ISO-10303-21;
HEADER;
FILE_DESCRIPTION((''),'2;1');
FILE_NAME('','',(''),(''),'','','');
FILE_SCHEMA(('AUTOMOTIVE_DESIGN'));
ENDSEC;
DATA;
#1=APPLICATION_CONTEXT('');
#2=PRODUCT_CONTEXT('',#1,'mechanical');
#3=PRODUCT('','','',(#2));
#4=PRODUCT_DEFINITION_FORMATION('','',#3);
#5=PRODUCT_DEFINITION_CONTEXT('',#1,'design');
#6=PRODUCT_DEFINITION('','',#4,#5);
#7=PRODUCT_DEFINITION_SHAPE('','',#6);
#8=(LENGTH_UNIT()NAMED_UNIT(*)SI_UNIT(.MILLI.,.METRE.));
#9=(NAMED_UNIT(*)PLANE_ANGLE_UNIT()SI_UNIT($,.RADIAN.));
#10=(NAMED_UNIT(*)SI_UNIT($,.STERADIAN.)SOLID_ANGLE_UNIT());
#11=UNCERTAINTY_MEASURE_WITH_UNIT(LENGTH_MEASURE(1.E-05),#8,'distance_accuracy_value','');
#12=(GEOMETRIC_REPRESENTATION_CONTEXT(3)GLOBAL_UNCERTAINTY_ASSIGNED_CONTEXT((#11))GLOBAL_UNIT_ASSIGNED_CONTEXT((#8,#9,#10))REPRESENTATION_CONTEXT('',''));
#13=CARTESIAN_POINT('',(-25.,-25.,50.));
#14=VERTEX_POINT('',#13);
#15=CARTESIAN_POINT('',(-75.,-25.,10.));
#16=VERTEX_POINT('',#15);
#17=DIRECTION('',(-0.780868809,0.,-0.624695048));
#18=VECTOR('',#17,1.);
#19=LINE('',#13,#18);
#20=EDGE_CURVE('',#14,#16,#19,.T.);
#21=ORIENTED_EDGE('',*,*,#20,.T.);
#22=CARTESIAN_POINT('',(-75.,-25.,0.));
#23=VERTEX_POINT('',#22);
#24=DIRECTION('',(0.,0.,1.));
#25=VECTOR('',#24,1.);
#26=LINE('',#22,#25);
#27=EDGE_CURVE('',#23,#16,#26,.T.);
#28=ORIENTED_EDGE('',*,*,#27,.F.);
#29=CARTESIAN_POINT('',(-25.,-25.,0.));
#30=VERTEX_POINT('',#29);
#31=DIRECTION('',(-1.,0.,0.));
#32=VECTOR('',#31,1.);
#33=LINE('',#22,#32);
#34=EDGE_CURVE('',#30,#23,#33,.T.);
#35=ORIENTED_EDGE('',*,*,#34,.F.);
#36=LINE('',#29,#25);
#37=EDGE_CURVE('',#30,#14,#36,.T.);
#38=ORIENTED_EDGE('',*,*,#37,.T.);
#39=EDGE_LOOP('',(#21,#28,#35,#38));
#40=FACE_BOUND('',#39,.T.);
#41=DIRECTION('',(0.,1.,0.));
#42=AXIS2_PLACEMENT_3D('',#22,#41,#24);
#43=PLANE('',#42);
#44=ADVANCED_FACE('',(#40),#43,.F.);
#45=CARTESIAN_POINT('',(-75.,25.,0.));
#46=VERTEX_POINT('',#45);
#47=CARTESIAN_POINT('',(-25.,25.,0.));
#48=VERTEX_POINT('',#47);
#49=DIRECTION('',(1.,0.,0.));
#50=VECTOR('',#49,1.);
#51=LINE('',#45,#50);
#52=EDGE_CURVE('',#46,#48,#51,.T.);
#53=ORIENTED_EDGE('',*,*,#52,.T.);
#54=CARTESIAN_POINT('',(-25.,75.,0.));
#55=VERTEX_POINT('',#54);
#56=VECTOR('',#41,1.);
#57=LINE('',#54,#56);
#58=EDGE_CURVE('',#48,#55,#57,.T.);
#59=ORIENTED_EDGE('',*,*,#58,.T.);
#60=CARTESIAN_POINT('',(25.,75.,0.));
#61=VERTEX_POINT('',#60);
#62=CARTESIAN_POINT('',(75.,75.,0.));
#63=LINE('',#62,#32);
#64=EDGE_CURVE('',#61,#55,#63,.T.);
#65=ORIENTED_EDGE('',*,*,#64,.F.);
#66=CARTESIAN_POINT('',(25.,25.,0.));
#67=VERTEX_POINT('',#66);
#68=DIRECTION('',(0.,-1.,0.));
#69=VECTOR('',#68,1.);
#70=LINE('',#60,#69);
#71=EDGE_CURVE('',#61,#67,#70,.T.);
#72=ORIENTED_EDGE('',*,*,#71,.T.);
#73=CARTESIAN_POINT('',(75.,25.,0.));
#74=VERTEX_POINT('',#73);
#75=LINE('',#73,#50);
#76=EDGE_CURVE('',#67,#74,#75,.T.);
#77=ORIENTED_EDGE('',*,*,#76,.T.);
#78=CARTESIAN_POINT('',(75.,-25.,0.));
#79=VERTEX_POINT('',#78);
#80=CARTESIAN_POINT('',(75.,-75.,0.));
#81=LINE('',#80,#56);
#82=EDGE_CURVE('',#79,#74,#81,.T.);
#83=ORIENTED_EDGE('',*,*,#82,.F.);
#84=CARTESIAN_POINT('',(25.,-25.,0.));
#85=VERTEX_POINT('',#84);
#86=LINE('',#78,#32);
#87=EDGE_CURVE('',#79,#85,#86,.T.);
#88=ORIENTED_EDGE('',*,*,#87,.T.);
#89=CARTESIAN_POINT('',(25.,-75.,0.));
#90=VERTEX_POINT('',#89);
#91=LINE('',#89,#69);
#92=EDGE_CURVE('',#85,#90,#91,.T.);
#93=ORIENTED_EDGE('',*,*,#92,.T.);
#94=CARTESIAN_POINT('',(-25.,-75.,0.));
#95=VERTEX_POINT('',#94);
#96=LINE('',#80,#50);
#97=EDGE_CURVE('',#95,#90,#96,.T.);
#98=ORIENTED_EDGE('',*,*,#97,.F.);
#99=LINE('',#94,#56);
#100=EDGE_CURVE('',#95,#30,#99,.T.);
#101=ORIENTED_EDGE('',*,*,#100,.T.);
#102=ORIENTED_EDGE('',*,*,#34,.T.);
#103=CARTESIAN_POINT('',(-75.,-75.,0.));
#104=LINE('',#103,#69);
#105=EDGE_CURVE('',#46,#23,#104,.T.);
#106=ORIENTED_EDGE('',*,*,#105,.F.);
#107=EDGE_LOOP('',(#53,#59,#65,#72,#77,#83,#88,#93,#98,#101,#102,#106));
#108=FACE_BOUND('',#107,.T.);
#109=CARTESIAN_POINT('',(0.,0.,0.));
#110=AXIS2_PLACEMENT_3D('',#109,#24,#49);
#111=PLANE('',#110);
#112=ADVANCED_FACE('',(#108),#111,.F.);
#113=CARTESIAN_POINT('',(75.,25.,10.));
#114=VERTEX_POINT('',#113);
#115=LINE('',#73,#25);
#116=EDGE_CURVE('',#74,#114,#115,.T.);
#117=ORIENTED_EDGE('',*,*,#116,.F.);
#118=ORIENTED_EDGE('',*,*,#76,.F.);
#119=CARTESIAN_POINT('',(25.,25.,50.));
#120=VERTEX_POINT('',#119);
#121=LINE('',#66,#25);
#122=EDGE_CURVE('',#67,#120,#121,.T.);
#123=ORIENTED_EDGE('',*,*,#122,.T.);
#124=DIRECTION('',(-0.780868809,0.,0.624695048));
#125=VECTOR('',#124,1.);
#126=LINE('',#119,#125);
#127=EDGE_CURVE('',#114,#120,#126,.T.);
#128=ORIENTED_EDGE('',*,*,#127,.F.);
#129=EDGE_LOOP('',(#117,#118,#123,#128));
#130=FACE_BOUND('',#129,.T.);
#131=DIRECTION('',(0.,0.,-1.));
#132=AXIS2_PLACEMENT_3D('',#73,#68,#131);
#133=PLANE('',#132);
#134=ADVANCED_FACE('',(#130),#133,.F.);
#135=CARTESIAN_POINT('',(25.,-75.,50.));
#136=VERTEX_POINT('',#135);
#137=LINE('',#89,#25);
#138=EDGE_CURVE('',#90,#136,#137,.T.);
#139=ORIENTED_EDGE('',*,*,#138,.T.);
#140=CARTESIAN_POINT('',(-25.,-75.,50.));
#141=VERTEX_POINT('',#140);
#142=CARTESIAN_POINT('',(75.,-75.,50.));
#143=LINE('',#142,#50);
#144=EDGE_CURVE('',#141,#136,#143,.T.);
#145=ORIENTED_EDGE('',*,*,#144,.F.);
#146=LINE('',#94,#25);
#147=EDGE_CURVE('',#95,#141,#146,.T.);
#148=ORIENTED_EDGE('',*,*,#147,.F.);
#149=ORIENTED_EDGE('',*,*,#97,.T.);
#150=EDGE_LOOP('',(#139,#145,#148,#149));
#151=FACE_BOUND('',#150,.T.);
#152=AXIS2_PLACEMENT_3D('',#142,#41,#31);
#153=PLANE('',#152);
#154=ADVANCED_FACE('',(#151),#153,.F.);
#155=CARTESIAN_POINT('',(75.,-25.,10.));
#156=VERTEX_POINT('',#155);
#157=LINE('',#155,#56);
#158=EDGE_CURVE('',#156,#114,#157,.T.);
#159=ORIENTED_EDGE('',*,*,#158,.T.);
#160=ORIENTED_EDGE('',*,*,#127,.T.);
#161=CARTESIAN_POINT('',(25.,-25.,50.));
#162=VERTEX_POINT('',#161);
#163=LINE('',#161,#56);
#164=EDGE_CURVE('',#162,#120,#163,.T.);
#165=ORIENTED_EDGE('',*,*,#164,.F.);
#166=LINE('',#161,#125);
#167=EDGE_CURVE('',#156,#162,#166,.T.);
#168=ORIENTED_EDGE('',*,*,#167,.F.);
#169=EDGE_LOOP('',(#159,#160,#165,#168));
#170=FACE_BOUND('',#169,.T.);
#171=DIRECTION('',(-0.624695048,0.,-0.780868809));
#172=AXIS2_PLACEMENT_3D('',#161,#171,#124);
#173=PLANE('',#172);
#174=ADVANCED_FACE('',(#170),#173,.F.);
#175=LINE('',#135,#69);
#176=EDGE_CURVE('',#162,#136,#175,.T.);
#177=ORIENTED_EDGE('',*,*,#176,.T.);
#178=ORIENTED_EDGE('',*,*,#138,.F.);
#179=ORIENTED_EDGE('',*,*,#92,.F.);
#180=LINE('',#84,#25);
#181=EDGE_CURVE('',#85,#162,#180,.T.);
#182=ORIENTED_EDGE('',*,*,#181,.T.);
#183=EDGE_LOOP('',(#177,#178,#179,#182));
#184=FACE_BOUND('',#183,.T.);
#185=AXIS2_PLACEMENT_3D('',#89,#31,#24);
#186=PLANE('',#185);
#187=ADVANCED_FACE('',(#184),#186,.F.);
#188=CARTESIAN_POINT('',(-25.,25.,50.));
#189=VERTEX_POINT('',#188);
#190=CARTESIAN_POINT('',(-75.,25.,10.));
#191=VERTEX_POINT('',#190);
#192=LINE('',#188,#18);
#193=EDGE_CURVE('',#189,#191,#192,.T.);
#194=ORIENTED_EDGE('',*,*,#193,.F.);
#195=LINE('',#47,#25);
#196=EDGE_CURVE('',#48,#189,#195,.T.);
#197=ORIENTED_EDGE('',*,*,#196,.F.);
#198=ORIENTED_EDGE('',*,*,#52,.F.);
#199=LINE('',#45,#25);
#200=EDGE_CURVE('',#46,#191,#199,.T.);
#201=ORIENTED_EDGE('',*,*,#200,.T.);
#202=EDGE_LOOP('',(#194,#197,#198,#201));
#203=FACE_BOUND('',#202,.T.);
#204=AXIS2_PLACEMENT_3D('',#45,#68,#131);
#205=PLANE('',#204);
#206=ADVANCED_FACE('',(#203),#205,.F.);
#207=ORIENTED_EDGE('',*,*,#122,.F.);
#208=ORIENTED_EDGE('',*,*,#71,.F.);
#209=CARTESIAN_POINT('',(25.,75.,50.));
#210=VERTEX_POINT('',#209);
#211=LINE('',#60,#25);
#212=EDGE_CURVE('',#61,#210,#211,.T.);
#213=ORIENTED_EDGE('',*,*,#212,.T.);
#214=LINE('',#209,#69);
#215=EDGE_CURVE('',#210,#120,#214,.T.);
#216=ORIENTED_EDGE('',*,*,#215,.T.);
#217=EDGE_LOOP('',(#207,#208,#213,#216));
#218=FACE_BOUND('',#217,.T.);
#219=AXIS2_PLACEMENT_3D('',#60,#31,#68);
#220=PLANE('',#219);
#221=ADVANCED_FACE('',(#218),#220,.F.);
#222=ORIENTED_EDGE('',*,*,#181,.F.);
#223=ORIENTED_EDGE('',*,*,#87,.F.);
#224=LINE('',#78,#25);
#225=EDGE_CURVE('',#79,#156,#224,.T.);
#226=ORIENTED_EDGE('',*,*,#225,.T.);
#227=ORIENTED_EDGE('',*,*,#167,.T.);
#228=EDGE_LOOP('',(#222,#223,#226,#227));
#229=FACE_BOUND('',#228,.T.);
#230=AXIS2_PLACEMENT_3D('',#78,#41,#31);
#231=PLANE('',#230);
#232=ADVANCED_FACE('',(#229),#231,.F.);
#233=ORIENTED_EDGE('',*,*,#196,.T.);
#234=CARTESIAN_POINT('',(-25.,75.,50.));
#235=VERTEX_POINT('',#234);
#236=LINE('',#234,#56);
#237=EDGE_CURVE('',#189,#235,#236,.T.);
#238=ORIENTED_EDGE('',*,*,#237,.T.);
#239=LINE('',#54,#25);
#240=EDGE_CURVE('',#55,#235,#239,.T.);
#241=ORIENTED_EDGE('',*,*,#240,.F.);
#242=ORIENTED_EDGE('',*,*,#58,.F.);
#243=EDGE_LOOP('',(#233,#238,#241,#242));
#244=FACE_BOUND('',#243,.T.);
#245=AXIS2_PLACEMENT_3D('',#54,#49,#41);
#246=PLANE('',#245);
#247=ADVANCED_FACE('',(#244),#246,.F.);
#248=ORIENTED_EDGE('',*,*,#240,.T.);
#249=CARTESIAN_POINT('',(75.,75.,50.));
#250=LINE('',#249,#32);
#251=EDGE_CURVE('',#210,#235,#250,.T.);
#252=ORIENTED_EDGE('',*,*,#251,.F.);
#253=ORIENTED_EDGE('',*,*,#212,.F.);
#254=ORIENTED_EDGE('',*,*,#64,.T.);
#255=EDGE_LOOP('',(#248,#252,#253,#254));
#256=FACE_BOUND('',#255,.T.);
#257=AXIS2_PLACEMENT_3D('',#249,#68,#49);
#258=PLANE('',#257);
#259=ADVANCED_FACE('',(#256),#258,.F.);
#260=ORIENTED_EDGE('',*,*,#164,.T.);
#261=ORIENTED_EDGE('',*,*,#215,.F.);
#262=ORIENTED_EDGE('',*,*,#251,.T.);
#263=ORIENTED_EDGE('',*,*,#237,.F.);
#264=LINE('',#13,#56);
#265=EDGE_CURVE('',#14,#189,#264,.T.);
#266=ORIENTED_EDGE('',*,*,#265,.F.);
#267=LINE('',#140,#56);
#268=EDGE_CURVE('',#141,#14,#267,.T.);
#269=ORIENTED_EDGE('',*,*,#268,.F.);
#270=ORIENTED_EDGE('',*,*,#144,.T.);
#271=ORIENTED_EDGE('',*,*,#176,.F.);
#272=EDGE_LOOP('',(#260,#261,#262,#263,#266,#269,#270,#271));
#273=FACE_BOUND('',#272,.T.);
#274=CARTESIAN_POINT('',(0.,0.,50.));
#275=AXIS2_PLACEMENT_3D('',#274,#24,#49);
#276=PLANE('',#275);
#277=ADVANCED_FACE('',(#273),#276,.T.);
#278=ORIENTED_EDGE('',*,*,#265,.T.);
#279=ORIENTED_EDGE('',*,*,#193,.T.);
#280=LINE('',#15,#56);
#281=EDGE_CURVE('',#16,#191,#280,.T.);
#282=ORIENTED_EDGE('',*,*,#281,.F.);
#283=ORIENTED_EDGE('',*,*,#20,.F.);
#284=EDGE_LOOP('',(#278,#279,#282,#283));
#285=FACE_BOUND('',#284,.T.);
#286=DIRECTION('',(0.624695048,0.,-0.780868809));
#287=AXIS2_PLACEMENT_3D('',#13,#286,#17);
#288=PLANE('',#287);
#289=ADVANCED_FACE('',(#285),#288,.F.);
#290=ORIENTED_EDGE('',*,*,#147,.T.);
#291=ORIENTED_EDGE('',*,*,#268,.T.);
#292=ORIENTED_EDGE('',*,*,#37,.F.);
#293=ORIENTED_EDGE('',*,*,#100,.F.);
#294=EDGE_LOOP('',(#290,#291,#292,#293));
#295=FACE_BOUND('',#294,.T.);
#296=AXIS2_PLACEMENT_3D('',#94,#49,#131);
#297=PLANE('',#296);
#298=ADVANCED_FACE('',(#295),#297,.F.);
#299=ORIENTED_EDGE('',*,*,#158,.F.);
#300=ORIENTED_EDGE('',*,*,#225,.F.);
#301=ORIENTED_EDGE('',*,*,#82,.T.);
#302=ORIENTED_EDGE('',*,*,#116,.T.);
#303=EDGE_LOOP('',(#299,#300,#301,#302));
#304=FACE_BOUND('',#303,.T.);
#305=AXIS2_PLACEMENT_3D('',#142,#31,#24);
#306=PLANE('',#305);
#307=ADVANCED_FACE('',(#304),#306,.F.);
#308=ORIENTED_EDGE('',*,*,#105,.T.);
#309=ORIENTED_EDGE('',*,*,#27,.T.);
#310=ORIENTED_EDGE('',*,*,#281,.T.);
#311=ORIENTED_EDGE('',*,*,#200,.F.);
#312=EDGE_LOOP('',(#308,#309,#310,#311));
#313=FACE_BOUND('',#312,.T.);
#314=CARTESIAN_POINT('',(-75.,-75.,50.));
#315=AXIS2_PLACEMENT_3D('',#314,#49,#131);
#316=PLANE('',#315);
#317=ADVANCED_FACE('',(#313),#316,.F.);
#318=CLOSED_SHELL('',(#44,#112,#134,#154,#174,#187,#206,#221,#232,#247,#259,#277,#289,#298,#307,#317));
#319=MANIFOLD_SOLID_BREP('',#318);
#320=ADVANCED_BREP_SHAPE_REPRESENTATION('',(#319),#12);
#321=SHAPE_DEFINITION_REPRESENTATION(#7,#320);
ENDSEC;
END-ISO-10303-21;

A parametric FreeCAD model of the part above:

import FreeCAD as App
import Part
import Sketcher
from FreeCAD import Vector
Q = App.Units.Quantity

doc = App.newDocument("Part")
body = doc.addObject("PartDesign::Body", "Body")

# Sketch on XY plane
sketch1 = doc.addObject("Sketcher::SketchObject", "Sketch")
body.addObject(sketch1)
sketch1.AttachmentSupport = (doc.XY_Plane, [""])
sketch1.MapMode = "FlatFace"
sketch1.addGeometry([
    Part.LineSegment(Vector(-75, 75, 0), Vector(-75, -75, 0)),
    Part.LineSegment(Vector(-75, -75, 0), Vector(75, -75, 0)),
    Part.LineSegment(Vector(75, -75, 0), Vector(75, 75, 0)),
    Part.LineSegment(Vector(75, 75, 0), Vector(-75, 75, 0)),
], False)
sketch1.addConstraint([
    Sketcher.Constraint("Coincident", 0, 2, 1, 1),
    Sketcher.Constraint("Coincident", 1, 2, 2, 1),
    Sketcher.Constraint("Coincident", 2, 2, 3, 1),
    Sketcher.Constraint("Coincident", 3, 2, 0, 1),
    Sketcher.Constraint("Vertical", 0),
    Sketcher.Constraint("Horizontal", 1),
    Sketcher.Constraint("Vertical", 2),
    Sketcher.Constraint("Horizontal", 3),
    Sketcher.Constraint("Symmetric", 0, 2, 2, 2, -1, 1),
    Sketcher.Constraint("Equal", 3, 0),
    Sketcher.Constraint("DistanceX", 1, 1, 1, 2, Q("150 mm")),
])
pad1 = doc.addObject("PartDesign::Pad", "Pad")
body.addObject(pad1)
pad1.Profile = sketch1
pad1.Length = 50

# Sketch on XY plane
sketch2 = doc.addObject("Sketcher::SketchObject", "Sketch001")
body.addObject(sketch2)
sketch2.AttachmentSupport = (doc.XY_Plane, [""])
sketch2.MapMode = "FlatFace"
sketch2.AttachmentOffset = App.Placement(Vector(0, 0, 50), App.Rotation())
sketch2.addGeometry([
    Part.LineSegment(Vector(-75, 75, 0), Vector(-75, 25, 0)),  # 0
    Part.LineSegment(Vector(-75, 25, 0), Vector(-25, 25, 0)),  # 1
    Part.LineSegment(Vector(-25, 25, 0), Vector(-25, 75, 0)),  # 2
    Part.LineSegment(Vector(-25, 75, 0), Vector(-75, 75, 0)),  # 3
    Part.LineSegment(Vector(25, 75, 0), Vector(25, 25, 0)),  # 4
    Part.LineSegment(Vector(25, 25, 0), Vector(75, 25, 0)),  # 5
    Part.LineSegment(Vector(75, 25, 0), Vector(75, 75, 0)),  # 6
    Part.LineSegment(Vector(75, 75, 0), Vector(25, 75, 0)),  # 7
    Part.LineSegment(Vector(25, -25, 0), Vector(25, -75, 0)),  # 8
    Part.LineSegment(Vector(25, -75, 0), Vector(75, -75, 0)),  # 9
    Part.LineSegment(Vector(75, -75, 0), Vector(75, -25, 0)),  # 10
    Part.LineSegment(Vector(75, -25, 0), Vector(25, -25, 0)),  # 11
    Part.LineSegment(Vector(-75, -25, 0), Vector(-75, -75, 0)),  # 12
    Part.LineSegment(Vector(-75, -75, 0), Vector(-25, -75, 0)),  # 13
    Part.LineSegment(Vector(-25, -75, 0), Vector(-25, -25, 0)),  # 14
    Part.LineSegment(Vector(-25, -25, 0), Vector(-75, -25, 0)),  # 15
], False)
sketch2.addConstraint([
    Sketcher.Constraint("Coincident", 0, 2, 1, 1),
    Sketcher.Constraint("Coincident", 1, 2, 2, 1),
    Sketcher.Constraint("Coincident", 2, 2, 3, 1),
    Sketcher.Constraint("Coincident", 3, 2, 0, 1),
    Sketcher.Constraint("Coincident", 4, 2, 5, 1),
    Sketcher.Constraint("Coincident", 5, 2, 6, 1),
    Sketcher.Constraint("Coincident", 6, 2, 7, 1),
    Sketcher.Constraint("Coincident", 7, 2, 4, 1),
    Sketcher.Constraint("Coincident", 8, 2, 9, 1),
    Sketcher.Constraint("Coincident", 9, 2, 10, 1),
    Sketcher.Constraint("Coincident", 10, 2, 11, 1),
    Sketcher.Constraint("Coincident", 11, 2, 8, 1),
    Sketcher.Constraint("Coincident", 12, 2, 13, 1),
    Sketcher.Constraint("Coincident", 13, 2, 14, 1),
    Sketcher.Constraint("Coincident", 14, 2, 15, 1),
    Sketcher.Constraint("Coincident", 15, 2, 12, 1),
    Sketcher.Constraint("Vertical", 0),
    Sketcher.Constraint("Horizontal", 1),
    Sketcher.Constraint("Vertical", 2),
    Sketcher.Constraint("Horizontal", 3),
    Sketcher.Constraint("Vertical", 4),
    Sketcher.Constraint("Horizontal", 5),
    Sketcher.Constraint("Vertical", 6),
    Sketcher.Constraint("Horizontal", 7),
    Sketcher.Constraint("Vertical", 8),
    Sketcher.Constraint("Horizontal", 9),
    Sketcher.Constraint("Vertical", 10),
    Sketcher.Constraint("Horizontal", 11),
    Sketcher.Constraint("Vertical", 12),
    Sketcher.Constraint("Horizontal", 13),
    Sketcher.Constraint("Vertical", 14),
    Sketcher.Constraint("Horizontal", 15),
    Sketcher.Constraint("Symmetric", 2, 2, 8, 2, -1, 1),
    Sketcher.Constraint("Symmetric", 0, 2, 10, 2, -1, 1),
    Sketcher.Constraint("Symmetric", 6, 2, 12, 2, -1, 1),
    Sketcher.Constraint("Symmetric", 4, 2, 14, 2, -1, 1),
    Sketcher.Constraint("Symmetric", 1, 2, 4, 2, -2),
    Sketcher.Constraint("Symmetric", 3, 2, 6, 2, -2),
    Sketcher.Constraint("Equal", 15, 0),
    Sketcher.Constraint("DistanceX", 1, 1, 1, 2, Q("50 mm")),
    Sketcher.Constraint("DistanceX", 0, 2, -1, 1, Q("75 mm")),
    Sketcher.Constraint("DistanceY", -1, 1, 0, 2, Q("25 mm")),
])
pocket1 = doc.addObject("PartDesign::Pocket", "Pocket")
body.addObject(pocket1)
pocket1.Profile = sketch2
pocket1.Length = 50

# Sketch on XZ plane
sketch3 = doc.addObject("Sketcher::SketchObject", "Sketch002")
body.addObject(sketch3)
sketch3.AttachmentSupport = (doc.XZ_Plane, [""])
sketch3.MapMode = "FlatFace"
sketch3.AttachmentOffset = App.Placement(Vector(0, 0, -25), App.Rotation())
sketch3.addGeometry([
    Part.LineSegment(Vector(75, 10, 0), Vector(25, 50, 0)),  # 0
    Part.LineSegment(Vector(25, 50, 0), Vector(75, 50, 0)),  # 1
    Part.LineSegment(Vector(75, 50, 0), Vector(75, 10, 0)),  # 2
    Part.LineSegment(Vector(-75, 10, 0), Vector(-75, 50, 0)),  # 3
    Part.LineSegment(Vector(-75, 50, 0), Vector(-25, 50, 0)),  # 4
    Part.LineSegment(Vector(-25, 50, 0), Vector(-75, 10, 0)),  # 5
], False)
sketch3.addConstraint([
    Sketcher.Constraint("Coincident", 0, 2, 1, 1),
    Sketcher.Constraint("Coincident", 1, 2, 2, 1),
    Sketcher.Constraint("Coincident", 2, 2, 0, 1),
    Sketcher.Constraint("Coincident", 3, 2, 4, 1),
    Sketcher.Constraint("Coincident", 4, 2, 5, 1),
    Sketcher.Constraint("Coincident", 5, 2, 3, 1),
    Sketcher.Constraint("Horizontal", 1),
    Sketcher.Constraint("Vertical", 2),
    Sketcher.Constraint("Vertical", 3),
    Sketcher.Constraint("Horizontal", 4),
    Sketcher.Constraint("Symmetric", 1, 2, 3, 2, -2),
    Sketcher.Constraint("Horizontal", 2, 2, 5, 2),
    Sketcher.Constraint("Equal", 1, 4),
    Sketcher.Constraint("DistanceX", 1, 1, 1, 2, Q("50 mm")),
    Sketcher.Constraint("DistanceY", 2, 2, 2, 1, Q("40 mm")),
    Sketcher.Constraint("DistanceX", -1, 1, 0, 2, Q("25 mm")),
    Sketcher.Constraint("DistanceY", -1, 1, 0, 2, Q("50 mm")),
])
pocket2 = doc.addObject("PartDesign::Pocket", "Pocket001")
body.addObject(pocket2)
pocket2.Profile = sketch3
pocket2.Length = 50
pocket2.Reversed = True

doc.recompute()
